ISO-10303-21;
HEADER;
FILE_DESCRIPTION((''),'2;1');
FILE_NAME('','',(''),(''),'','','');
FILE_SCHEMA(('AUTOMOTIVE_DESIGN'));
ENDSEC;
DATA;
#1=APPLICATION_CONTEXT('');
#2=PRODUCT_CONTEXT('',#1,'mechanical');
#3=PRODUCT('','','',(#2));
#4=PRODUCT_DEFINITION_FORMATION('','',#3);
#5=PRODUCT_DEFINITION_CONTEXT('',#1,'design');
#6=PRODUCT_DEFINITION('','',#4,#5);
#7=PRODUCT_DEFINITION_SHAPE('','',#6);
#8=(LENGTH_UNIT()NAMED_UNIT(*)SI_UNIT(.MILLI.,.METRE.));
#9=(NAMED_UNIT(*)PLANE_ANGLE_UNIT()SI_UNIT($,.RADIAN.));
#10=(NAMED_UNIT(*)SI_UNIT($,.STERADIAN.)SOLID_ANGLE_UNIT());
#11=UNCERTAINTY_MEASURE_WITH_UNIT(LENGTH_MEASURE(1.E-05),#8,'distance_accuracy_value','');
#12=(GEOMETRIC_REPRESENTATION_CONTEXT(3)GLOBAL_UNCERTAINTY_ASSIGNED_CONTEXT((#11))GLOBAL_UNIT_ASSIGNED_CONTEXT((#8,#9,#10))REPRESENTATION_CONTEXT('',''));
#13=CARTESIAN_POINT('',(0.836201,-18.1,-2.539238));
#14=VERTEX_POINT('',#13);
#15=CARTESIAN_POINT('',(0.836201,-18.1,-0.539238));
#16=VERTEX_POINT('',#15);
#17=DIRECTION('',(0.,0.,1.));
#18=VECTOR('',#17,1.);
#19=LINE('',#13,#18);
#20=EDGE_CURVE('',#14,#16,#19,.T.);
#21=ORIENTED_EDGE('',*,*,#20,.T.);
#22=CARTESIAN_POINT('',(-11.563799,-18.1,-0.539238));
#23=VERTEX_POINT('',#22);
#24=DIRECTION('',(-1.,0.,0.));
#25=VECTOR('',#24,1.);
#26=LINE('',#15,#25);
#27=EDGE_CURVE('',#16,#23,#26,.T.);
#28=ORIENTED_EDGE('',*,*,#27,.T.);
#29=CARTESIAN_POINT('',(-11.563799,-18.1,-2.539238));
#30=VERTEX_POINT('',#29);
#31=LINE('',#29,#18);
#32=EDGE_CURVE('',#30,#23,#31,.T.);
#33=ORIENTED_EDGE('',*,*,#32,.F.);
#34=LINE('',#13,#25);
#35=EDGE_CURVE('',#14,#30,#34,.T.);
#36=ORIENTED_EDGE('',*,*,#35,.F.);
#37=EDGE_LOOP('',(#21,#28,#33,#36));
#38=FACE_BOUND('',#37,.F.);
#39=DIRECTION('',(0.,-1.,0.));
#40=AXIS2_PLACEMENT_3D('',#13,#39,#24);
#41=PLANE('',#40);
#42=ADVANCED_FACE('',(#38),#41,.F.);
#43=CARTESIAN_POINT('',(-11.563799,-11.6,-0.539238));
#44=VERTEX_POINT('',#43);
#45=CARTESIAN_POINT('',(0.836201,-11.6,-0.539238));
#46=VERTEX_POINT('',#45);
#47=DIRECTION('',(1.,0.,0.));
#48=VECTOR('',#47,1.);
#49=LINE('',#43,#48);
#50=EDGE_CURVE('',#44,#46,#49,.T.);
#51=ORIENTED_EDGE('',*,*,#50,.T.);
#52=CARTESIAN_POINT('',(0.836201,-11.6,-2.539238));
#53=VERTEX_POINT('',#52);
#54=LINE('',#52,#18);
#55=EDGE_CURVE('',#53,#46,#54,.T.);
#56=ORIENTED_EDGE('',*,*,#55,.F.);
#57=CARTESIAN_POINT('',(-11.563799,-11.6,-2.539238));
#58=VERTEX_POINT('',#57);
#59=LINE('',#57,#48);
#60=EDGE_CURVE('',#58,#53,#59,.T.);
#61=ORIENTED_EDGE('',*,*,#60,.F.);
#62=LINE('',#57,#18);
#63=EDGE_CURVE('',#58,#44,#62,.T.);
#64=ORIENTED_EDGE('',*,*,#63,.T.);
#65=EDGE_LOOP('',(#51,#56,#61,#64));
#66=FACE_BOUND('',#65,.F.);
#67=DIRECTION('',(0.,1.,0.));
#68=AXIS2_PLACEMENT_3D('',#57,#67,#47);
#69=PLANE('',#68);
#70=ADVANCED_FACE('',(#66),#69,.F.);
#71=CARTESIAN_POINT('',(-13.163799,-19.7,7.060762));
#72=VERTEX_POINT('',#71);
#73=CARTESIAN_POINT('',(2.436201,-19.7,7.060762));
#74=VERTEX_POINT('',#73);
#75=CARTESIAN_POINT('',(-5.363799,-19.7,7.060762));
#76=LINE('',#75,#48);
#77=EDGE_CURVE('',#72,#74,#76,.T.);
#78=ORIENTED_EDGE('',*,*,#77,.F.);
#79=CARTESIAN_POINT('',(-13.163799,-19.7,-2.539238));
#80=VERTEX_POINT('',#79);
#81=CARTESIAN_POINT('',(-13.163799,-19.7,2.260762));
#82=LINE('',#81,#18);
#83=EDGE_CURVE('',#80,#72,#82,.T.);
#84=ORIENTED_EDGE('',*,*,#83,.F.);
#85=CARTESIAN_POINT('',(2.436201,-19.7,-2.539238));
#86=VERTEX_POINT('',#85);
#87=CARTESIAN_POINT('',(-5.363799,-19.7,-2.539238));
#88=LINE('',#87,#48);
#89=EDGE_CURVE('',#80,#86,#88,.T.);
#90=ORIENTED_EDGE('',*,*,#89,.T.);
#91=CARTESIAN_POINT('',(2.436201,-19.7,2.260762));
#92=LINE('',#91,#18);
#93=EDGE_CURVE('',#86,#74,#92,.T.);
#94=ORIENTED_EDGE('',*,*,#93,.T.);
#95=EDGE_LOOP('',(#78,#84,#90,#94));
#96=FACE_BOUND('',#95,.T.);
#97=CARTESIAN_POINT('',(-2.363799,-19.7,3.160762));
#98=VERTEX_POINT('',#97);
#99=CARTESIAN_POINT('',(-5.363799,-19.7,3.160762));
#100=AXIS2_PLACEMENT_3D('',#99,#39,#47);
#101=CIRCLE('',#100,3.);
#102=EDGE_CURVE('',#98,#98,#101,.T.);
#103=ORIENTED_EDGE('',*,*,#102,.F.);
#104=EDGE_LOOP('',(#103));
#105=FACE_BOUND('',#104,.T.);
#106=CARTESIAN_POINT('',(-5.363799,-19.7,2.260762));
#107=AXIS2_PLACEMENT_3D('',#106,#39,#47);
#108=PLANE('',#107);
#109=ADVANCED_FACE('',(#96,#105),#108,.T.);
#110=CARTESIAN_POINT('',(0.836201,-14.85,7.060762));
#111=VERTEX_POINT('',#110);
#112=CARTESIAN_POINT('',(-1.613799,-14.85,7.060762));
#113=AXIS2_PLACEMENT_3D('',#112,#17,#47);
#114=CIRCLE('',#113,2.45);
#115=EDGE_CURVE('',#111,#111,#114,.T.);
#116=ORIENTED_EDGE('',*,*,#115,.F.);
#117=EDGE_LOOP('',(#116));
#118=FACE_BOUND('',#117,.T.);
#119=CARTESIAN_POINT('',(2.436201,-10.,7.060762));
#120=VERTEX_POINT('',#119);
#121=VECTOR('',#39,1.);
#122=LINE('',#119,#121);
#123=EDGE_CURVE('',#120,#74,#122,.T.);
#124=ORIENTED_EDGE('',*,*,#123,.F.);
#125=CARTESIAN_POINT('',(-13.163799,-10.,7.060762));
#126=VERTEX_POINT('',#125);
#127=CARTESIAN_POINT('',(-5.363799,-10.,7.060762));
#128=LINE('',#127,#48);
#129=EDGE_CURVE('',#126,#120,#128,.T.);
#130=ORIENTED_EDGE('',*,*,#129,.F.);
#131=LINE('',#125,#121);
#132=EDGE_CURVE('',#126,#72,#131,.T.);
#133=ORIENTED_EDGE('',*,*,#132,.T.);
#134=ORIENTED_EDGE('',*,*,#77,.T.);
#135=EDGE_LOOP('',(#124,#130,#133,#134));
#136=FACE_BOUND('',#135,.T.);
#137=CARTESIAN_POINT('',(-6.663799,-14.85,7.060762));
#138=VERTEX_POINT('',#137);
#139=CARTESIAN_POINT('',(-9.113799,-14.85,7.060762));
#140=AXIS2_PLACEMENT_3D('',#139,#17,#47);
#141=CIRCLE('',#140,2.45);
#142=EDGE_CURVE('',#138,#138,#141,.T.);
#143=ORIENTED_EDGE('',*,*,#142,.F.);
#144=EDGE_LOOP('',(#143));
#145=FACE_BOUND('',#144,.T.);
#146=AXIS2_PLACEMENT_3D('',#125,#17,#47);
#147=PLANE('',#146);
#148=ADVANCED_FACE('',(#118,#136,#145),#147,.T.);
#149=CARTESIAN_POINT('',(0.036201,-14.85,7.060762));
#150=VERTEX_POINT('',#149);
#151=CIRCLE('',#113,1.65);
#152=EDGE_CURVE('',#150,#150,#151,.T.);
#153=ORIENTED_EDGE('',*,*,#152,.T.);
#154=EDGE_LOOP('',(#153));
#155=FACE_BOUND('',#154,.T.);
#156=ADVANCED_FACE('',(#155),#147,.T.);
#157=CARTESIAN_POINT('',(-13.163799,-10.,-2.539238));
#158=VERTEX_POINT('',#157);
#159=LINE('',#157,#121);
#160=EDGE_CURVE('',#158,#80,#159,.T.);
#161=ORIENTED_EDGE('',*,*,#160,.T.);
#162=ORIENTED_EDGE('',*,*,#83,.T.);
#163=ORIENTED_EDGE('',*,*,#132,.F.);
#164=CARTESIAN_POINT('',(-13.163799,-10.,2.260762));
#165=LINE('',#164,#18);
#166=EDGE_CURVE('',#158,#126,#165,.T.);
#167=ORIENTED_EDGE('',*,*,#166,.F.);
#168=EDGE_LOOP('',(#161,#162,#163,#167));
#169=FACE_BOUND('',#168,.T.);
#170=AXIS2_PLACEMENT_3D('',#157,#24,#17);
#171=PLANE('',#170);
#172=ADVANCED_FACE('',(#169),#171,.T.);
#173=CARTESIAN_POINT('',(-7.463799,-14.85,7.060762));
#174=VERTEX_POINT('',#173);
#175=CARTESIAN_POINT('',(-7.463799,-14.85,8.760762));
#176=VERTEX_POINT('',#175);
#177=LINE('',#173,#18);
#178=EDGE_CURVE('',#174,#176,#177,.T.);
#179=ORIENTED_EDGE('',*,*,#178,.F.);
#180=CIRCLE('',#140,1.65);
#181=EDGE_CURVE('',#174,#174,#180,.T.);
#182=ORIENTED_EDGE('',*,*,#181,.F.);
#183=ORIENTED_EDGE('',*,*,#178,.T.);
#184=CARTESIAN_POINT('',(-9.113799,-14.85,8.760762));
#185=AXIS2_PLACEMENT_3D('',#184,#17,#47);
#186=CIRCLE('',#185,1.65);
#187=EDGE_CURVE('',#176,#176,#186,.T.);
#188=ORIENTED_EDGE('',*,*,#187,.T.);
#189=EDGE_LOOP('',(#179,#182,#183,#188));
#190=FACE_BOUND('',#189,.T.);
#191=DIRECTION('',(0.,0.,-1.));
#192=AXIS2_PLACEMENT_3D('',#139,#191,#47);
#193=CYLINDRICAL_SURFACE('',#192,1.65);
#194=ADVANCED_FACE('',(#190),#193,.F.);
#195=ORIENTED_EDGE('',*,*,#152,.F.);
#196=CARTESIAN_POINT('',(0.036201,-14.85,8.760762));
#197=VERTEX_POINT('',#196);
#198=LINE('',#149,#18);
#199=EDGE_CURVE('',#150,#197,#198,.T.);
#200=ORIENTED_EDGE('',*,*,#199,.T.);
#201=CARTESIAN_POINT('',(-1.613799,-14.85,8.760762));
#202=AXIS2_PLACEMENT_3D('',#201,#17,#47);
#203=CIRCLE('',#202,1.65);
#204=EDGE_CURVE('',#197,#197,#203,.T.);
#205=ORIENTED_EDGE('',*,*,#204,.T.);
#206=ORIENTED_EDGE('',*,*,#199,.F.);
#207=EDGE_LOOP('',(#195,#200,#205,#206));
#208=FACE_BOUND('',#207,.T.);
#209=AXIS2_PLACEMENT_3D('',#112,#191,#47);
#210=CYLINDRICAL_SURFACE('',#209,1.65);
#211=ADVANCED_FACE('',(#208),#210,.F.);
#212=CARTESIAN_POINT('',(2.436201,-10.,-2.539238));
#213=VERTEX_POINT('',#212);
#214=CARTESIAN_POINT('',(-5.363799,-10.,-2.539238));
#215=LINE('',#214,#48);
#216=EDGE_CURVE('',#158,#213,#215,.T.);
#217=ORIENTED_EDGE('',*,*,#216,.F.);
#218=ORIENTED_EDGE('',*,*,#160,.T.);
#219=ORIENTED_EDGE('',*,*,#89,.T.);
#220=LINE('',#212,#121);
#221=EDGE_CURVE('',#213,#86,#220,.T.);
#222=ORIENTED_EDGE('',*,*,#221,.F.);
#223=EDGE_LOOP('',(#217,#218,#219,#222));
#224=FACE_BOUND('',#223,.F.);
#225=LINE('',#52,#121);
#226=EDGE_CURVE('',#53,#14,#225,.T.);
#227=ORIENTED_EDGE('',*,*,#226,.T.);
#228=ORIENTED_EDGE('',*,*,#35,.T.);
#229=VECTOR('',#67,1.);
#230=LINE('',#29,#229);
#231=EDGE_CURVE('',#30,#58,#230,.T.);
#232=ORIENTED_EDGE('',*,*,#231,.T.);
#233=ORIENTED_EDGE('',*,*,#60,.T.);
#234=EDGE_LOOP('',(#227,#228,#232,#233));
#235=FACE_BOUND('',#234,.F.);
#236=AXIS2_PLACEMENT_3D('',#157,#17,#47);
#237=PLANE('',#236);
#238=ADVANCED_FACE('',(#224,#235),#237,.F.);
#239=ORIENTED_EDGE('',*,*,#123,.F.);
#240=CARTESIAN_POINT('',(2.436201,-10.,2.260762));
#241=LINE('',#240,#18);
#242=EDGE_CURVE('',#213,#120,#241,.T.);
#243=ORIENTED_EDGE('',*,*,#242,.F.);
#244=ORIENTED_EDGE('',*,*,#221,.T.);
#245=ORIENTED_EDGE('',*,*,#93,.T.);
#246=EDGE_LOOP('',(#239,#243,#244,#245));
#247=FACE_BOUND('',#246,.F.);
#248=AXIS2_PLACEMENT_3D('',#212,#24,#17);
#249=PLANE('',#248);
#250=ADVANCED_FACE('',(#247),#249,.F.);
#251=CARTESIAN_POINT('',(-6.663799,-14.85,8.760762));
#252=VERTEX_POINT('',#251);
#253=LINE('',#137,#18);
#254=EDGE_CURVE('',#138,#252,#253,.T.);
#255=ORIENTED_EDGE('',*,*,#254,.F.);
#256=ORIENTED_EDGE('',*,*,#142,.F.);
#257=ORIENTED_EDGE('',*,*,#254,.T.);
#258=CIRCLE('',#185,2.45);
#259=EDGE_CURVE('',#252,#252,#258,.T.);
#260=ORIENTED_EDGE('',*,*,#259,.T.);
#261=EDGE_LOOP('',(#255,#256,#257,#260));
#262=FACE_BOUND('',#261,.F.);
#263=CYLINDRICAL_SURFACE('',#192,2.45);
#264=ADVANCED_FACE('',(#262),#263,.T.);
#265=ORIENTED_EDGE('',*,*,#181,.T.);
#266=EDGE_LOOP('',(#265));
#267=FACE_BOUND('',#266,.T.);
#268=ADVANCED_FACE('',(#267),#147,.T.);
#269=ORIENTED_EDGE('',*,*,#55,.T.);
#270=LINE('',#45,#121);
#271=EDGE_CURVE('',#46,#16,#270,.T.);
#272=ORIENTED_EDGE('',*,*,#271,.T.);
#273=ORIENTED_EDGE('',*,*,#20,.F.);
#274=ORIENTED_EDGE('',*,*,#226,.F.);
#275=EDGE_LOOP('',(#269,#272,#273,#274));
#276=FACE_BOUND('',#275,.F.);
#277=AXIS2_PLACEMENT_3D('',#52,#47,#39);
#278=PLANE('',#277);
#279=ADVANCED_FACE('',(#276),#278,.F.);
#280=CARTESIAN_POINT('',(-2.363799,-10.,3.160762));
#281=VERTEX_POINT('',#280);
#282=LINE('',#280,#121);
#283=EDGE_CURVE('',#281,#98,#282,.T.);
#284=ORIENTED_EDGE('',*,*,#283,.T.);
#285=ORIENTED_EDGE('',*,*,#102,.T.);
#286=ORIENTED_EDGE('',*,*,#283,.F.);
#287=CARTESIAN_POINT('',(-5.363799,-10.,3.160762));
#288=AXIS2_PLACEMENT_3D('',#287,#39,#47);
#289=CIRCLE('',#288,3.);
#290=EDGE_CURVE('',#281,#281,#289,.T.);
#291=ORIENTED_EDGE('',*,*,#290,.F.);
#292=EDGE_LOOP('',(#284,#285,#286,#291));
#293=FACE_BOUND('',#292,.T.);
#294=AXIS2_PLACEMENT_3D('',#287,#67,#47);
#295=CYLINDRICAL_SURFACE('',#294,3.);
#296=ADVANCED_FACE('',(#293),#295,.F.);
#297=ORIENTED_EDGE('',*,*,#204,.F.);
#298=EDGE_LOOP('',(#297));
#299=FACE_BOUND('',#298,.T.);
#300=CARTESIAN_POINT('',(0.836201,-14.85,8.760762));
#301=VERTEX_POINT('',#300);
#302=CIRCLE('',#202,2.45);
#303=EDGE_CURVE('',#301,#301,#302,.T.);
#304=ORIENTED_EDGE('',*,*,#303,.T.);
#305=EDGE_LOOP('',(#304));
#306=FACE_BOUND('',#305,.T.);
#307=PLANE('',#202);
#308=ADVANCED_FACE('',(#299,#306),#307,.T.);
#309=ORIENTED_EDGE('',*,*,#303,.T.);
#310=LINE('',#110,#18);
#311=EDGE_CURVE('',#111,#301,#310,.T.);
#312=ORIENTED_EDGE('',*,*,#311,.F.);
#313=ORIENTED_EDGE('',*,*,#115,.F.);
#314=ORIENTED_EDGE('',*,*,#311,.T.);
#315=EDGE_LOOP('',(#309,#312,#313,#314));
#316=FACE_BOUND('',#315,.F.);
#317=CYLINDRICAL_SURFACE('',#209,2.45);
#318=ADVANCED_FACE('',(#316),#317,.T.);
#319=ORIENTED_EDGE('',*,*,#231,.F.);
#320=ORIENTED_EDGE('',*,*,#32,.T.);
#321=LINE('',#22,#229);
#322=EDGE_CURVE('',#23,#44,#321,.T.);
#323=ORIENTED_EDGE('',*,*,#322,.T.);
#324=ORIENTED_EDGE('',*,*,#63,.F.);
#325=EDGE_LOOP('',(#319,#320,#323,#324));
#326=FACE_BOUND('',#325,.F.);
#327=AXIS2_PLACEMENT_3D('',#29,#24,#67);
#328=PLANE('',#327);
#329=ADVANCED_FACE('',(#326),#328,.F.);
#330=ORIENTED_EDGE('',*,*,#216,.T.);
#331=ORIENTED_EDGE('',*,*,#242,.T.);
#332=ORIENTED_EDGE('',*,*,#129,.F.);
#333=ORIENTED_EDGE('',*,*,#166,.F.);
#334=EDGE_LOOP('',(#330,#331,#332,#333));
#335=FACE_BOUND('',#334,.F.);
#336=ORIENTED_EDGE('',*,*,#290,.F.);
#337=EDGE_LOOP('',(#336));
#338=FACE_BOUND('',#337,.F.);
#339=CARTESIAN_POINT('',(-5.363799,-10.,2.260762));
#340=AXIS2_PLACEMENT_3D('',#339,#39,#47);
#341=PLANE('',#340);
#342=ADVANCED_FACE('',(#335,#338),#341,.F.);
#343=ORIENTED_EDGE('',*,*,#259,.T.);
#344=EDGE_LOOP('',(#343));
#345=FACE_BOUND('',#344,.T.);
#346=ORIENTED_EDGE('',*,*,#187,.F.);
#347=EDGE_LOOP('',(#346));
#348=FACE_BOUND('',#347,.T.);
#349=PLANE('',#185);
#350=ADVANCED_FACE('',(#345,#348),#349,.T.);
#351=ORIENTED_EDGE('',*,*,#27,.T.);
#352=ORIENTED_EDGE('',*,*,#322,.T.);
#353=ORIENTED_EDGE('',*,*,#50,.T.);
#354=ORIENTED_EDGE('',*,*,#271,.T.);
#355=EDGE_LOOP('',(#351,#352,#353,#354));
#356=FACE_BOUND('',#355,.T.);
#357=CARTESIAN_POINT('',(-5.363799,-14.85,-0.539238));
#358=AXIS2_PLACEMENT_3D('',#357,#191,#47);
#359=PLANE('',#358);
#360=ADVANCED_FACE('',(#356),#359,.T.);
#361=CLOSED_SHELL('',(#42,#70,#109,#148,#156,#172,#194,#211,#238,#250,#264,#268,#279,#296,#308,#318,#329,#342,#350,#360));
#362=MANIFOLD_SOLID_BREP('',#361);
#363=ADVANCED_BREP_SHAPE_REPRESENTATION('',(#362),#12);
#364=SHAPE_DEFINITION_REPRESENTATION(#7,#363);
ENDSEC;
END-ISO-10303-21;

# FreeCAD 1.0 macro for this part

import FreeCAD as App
import Part
import Sketcher


def add_polygon(sketch, points):
    """Adds a closed chain of lines whose ends are joined by coincident constraints."""
    first, n = sketch.GeometryCount, len(points)
    for a, b in zip(points, points[1:] + points[:1]):
        sketch.addGeometry(Part.LineSegment(App.Vector(*a, 0), App.Vector(*b, 0)), False)
    for i in range(n):
        sketch.addConstraint(Sketcher.Constraint("Coincident", first + i, 2, first + (i + 1) % n, 1))

doc = App.newDocument("Part")
params = doc.addObject("Spreadsheet::Sheet", "Params")
for row, (alias, value) in enumerate([
    ("sketch1_diameter", "6 mm"),
    ("sketch1_width", "15.6 mm"),
    ("sketch1_height", "9.6 mm"),
    ("pad1_length", "9.7 mm"),
    ("sketch2_diameter", "4.9 mm"),
    ("sketch2_diameter2", "3.3 mm"),
    ("pad2_length", "1.7 mm"),
    ("sketch3_width", "12.4 mm"),
    ("sketch3_height", "6.5 mm"),
    ("pocket1_length", "2 mm"),
    ("sketch4_diameter", "6 mm"),
    ("sketch4_diameter2", "4.6 mm"),
    ("pocket2_length", "0.8 mm"),
    ("sketch5_diameter", "6 mm"),
    ("sketch5_diameter2", "4.6 mm"),
    ("pocket3_length", "0.8 mm"),
], start=1):
    params.set(f"A{row}", alias)
    params.set(f"B{row}", "=" + value)
    params.setAlias(f"B{row}", alias)

body = doc.addObject("PartDesign::Body", "Body")

# Sketch on XZ plane
sketch1 = body.newObject("Sketcher::SketchObject", "Sketch")
sketch1.AttachmentSupport = (doc.getObject("XZ_Plane"), [""])
sketch1.MapMode = "FlatFace"
sketch1.AttachmentOffset = App.Placement(App.Vector(0, 0, 10), App.Rotation())
add_polygon(sketch1, [(-13.163799, 7.060762), (-13.163799, -2.539238), (2.436201, -2.539238), (2.436201, 7.060762)])  # lines 0-3
sketch1.addGeometry(Part.Circle(App.Vector(-5.363799, 3.160762, 0), App.Vector(0, 0, 1), 3), False)  # 4
sketch1.addConstraint(Sketcher.Constraint("Vertical", 0))
sketch1.addConstraint(Sketcher.Constraint("Horizontal", 1))
sketch1.addConstraint(Sketcher.Constraint("Vertical", 2))
sketch1.addConstraint(Sketcher.Constraint("Horizontal", 3))
sketch1.addConstraint(Sketcher.Constraint("Diameter", 4, 6.0))
sketch1.addConstraint(Sketcher.Constraint("DistanceX", 1, 1, 1, 2, 15.6))
sketch1.addConstraint(Sketcher.Constraint("DistanceY", 0, 2, 0, 1, 9.6))
sketch1.addConstraint(Sketcher.Constraint("DistanceX", 0, 2, 4, 3, 7.8))
sketch1.addConstraint(Sketcher.Constraint("DistanceY", 0, 2, 4, 3, 5.7))
sketch1.addConstraint(Sketcher.Constraint("DistanceX", 4, 3, -1, 1, 5.363799))
sketch1.addConstraint(Sketcher.Constraint("DistanceY", -1, 1, 4, 3, 3.160762))
sketch1.setExpression("Constraints[8]", "Params.sketch1_diameter")
sketch1.setExpression("Constraints[9]", "Params.sketch1_width")
sketch1.setExpression("Constraints[10]", "Params.sketch1_height")
pad1 = body.newObject("PartDesign::Pad", "Pad")
pad1.Profile = sketch1
pad1.setExpression("Length", "Params.pad1_length")

# Sketch on XY plane
sketch2 = body.newObject("Sketcher::SketchObject", "Sketch001")
sketch2.AttachmentSupport = (doc.getObject("XY_Plane"), [""])
sketch2.MapMode = "FlatFace"
sketch2.AttachmentOffset = App.Placement(App.Vector(0, 0, 7.060762), App.Rotation())
sketch2.addGeometry(Part.Circle(App.Vector(-1.613799, -14.85, 0), App.Vector(0, 0, 1), 2.45), False)
sketch2.addGeometry(Part.Circle(App.Vector(-1.613799, -14.85, 0), App.Vector(0, 0, 1), 1.65), False)
sketch2.addGeometry(Part.Circle(App.Vector(-9.113799, -14.85, 0), App.Vector(0, 0, 1), 2.45), False)
sketch2.addGeometry(Part.Circle(App.Vector(-9.113799, -14.85, 0), App.Vector(0, 0, 1), 1.65), False)
sketch2.addConstraint(Sketcher.Constraint("Coincident", 1, 3, 0, 3))
sketch2.addConstraint(Sketcher.Constraint("Coincident", 3, 3, 2, 3))
sketch2.addConstraint(Sketcher.Constraint("Equal", 0, 2))
sketch2.addConstraint(Sketcher.Constraint("Equal", 1, 3))
sketch2.addConstraint(Sketcher.Constraint("Horizontal", 1, 3, 2, 3))
sketch2.addConstraint(Sketcher.Constraint("Diameter", 0, 4.9))
sketch2.addConstraint(Sketcher.Constraint("Diameter", 1, 3.3))
sketch2.addConstraint(Sketcher.Constraint("DistanceX", 2, 3, 0, 3, 7.5))
sketch2.addConstraint(Sketcher.Constraint("DistanceY", 0, 3, -1, 1, 14.85))
sketch2.addConstraint(Sketcher.Constraint("DistanceX", 0, 3, -1, 1, 1.613799))
sketch2.setExpression("Constraints[5]", "Params.sketch2_diameter")
sketch2.setExpression("Constraints[6]", "Params.sketch2_diameter2")
pad2 = body.newObject("PartDesign::Pad", "Pad001")
pad2.Profile = sketch2
pad2.setExpression("Length", "Params.pad2_length")

# Sketch on XY plane
sketch3 = body.newObject("Sketcher::SketchObject", "Sketch002")
sketch3.AttachmentSupport = (doc.getObject("XY_Plane"), [""])
sketch3.MapMode = "FlatFace"
sketch3.AttachmentOffset = App.Placement(App.Vector(0, 0, -2.539238), App.Rotation())
add_polygon(sketch3, [(-11.563799, -18.1), (-11.563799, -11.6), (0.836201, -11.6), (0.836201, -18.1)])  # lines 0-3
sketch3.addConstraint(Sketcher.Constraint("Vertical", 0))
sketch3.addConstraint(Sketcher.Constraint("Horizontal", 1))
sketch3.addConstraint(Sketcher.Constraint("Vertical", 2))
sketch3.addConstraint(Sketcher.Constraint("Horizontal", 3))
sketch3.addConstraint(Sketcher.Constraint("DistanceX", 1, 1, 1, 2, 12.4))
sketch3.addConstraint(Sketcher.Constraint("DistanceY", 0, 1, 0, 2, 6.5))
sketch3.addConstraint(Sketcher.Constraint("DistanceY", 0, 2, -1, 1, 11.6))
sketch3.addConstraint(Sketcher.Constraint("DistanceX", 0, 2, -1, 1, 11.563799))
sketch3.setExpression("Constraints[8]", "Params.sketch3_width")
sketch3.setExpression("Constraints[9]", "Params.sketch3_height")
pocket1 = body.newObject("PartDesign::Pocket", "Pocket")
pocket1.Profile = sketch3
pocket1.setExpression("Length", "Params.pocket1_length")
pocket1.Reversed = True

# Sketch on XZ plane
sketch4 = body.newObject("Sketcher::SketchObject", "Sketch003")
sketch4.AttachmentSupport = (doc.getObject("XZ_Plane"), [""])
sketch4.MapMode = "FlatFace"
sketch4.addGeometry(Part.Circle(App.Vector(-5.363799, 3.160762, 0), App.Vector(0, 0, 1), 3), False)
sketch4.addGeometry(Part.Circle(App.Vector(-5.363799, 3.160762, 0), App.Vector(0, 0, 1), 2.3), False)
sketch4.addConstraint(Sketcher.Constraint("Coincident", 1, 3, 0, 3))
sketch4.addConstraint(Sketcher.Constraint("Diameter", 0, 6.0))
sketch4.addConstraint(Sketcher.Constraint("Diameter", 1, 4.6))
sketch4.addConstraint(Sketcher.Constraint("DistanceX", 0, 3, -1, 1, 5.363799))
sketch4.addConstraint(Sketcher.Constraint("DistanceY", -1, 1, 0, 3, 3.160762))
sketch4.setExpression("Constraints[1]", "Params.sketch4_diameter")
sketch4.setExpression("Constraints[2]", "Params.sketch4_diameter2")
pocket2 = body.newObject("PartDesign::Pocket", "Pocket001")
pocket2.Profile = sketch4
pocket2.setExpression("Length", "Params.pocket2_length")
pocket2.Reversed = True

# Sketch on XZ plane
sketch5 = body.newObject("Sketcher::SketchObject", "Sketch004")
sketch5.AttachmentSupport = (doc.getObject("XZ_Plane"), [""])
sketch5.MapMode = "FlatFace"
sketch5.AttachmentOffset = App.Placement(App.Vector(0, 0, 19.7), App.Rotation())
sketch5.addGeometry(Part.Circle(App.Vector(-5.363799, 3.160762, 0), App.Vector(0, 0, 1), 3), False)
sketch5.addGeometry(Part.Circle(App.Vector(-5.363799, 3.160762, 0), App.Vector(0, 0, 1), 2.3), False)
sketch5.addConstraint(Sketcher.Constraint("Coincident", 1, 3, 0, 3))
sketch5.addConstraint(Sketcher.Constraint("Diameter", 0, 6.0))
sketch5.addConstraint(Sketcher.Constraint("Diameter", 1, 4.6))
sketch5.addConstraint(Sketcher.Constraint("DistanceX", 0, 3, -1, 1, 5.363799))
sketch5.addConstraint(Sketcher.Constraint("DistanceY", -1, 1, 0, 3, 3.160762))
sketch5.setExpression("Constraints[1]", "Params.sketch5_diameter")
sketch5.setExpression("Constraints[2]", "Params.sketch5_diameter2")
pocket3 = body.newObject("PartDesign::Pocket", "Pocket002")
pocket3.Profile = sketch5
pocket3.setExpression("Length", "Params.pocket3_length")

doc.recompute()
